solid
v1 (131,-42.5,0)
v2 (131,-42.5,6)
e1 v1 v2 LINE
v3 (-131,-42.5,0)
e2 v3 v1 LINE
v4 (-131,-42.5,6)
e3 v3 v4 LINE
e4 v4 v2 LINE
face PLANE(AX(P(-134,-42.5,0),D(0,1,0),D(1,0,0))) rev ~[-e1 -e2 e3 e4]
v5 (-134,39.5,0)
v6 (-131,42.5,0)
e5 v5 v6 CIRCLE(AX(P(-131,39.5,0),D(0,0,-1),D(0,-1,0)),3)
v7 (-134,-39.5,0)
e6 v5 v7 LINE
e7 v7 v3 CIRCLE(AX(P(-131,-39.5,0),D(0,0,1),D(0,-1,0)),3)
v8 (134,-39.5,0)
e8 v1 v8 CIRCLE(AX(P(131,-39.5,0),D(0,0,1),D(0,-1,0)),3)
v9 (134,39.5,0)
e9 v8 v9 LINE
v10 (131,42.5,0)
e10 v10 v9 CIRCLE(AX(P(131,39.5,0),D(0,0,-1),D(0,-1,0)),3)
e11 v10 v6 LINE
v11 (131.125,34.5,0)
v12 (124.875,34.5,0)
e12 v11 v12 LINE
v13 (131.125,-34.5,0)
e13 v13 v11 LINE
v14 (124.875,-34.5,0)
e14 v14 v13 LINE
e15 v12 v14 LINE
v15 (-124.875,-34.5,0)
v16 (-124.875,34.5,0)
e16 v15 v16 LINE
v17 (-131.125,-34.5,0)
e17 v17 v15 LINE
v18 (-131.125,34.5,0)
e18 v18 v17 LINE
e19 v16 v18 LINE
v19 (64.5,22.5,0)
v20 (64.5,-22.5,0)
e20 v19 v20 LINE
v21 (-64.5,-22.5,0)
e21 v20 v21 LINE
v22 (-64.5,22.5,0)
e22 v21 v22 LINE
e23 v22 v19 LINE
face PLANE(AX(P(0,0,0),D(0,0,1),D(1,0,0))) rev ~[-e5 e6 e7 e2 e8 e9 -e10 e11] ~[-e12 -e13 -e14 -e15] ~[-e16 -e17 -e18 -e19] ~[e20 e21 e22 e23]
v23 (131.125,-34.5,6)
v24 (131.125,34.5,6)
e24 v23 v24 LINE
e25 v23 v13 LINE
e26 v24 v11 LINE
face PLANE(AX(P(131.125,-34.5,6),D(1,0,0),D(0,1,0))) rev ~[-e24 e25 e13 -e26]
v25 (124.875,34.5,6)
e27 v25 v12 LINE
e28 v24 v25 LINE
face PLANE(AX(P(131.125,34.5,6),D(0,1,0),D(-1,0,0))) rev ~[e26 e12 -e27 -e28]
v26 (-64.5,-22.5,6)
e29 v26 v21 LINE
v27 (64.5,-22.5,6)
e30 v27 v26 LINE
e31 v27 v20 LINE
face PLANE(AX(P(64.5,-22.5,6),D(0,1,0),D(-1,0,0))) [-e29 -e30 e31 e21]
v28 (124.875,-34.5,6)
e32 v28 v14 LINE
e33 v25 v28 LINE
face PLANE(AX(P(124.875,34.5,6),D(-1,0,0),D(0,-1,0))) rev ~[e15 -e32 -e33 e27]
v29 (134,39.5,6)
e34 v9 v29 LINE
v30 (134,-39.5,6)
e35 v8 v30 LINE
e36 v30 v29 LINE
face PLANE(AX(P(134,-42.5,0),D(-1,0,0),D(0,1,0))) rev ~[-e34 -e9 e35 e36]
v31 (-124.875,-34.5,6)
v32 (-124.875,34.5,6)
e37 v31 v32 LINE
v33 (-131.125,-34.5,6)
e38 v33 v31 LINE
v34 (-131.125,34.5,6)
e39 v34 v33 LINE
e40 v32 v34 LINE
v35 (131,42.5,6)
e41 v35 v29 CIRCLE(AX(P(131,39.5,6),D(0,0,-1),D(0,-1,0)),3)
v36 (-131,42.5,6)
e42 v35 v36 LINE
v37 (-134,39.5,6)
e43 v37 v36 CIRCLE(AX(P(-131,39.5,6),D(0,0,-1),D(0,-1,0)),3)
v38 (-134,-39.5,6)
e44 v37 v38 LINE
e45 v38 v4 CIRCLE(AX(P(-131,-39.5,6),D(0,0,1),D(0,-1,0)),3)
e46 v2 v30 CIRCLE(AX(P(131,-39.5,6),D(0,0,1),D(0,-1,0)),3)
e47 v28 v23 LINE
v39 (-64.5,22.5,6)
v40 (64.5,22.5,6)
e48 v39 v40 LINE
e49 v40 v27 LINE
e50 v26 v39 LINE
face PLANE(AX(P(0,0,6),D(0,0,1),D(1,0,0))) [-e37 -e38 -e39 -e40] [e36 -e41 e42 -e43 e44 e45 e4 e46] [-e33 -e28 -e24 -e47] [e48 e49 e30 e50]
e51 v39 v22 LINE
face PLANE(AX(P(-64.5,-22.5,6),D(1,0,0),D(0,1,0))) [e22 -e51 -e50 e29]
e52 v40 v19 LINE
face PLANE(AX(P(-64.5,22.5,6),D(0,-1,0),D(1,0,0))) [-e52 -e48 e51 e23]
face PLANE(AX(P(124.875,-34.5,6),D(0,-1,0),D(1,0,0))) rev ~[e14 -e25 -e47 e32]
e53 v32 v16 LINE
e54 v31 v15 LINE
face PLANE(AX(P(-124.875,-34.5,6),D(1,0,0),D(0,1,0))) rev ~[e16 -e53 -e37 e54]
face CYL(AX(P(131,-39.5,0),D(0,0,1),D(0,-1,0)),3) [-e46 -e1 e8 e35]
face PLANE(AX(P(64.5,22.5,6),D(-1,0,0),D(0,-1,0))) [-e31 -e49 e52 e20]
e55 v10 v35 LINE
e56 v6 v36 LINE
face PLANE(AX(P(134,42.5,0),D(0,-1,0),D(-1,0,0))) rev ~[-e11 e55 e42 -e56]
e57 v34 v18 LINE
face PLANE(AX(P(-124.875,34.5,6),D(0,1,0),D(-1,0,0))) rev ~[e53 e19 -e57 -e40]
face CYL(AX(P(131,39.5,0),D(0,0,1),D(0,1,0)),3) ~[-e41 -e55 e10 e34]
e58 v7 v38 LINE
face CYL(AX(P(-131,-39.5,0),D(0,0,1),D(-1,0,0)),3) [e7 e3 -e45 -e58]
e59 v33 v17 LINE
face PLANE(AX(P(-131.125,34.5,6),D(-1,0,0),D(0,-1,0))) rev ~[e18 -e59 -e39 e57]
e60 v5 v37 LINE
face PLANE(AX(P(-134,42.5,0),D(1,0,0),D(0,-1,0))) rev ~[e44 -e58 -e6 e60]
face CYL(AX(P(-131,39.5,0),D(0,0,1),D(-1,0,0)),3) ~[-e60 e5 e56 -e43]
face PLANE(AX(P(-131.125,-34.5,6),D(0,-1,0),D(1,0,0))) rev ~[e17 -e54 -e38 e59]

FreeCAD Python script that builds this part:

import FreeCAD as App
import Part
import Sketcher

V = App.Vector
Q = App.Units.Quantity


def edges_at(feature, points):
    """Names of the edges that pass closest to the given points."""
    edges = feature.Shape.Edges
    near = lambda p: min(range(len(edges)), key=lambda i: edges[i].distToShape(Part.Vertex(*p))[0])
    return sorted({f"Edge{near(p) + 1}" for p in points})

doc = App.newDocument("Part")
body = doc.addObject("PartDesign::Body", "Body")

sketch1 = body.newObject("Sketcher::SketchObject", "Sketch")
sketch1.AttachmentSupport = (doc.getObject("XY_Plane"), [""])
sketch1.MapMode = "FlatFace"
sketch1.addGeometry([
    Part.LineSegment(V(-134, 42.5, 0), V(-134, -42.5, 0)),
    Part.LineSegment(V(-134, -42.5, 0), V(134, -42.5, 0)),
    Part.LineSegment(V(134, -42.5, 0), V(134, 42.5, 0)),
    Part.LineSegment(V(134, 42.5, 0), V(-134, 42.5, 0)),
], False)
sketch1.addConstraint([
    Sketcher.Constraint("Coincident", 0, 2, 1, 1),
    Sketcher.Constraint("Coincident", 1, 2, 2, 1),
    Sketcher.Constraint("Coincident", 2, 2, 3, 1),
    Sketcher.Constraint("Coincident", 3, 2, 0, 1),
    Sketcher.Constraint("Vertical", 0),
    Sketcher.Constraint("Horizontal", 1),
    Sketcher.Constraint("Vertical", 2),
    Sketcher.Constraint("Horizontal", 3),
    Sketcher.Constraint("Symmetric", 0, 2, 2, 2, -1, 1),
    Sketcher.Constraint("DistanceX", 1, 1, 1, 2, Q("268 mm")),
    Sketcher.Constraint("DistanceY", 0, 2, 0, 1, Q("85 mm")),
])
pad1 = body.newObject("PartDesign::Pad", "Pad")
pad1.Profile = sketch1
pad1.Length = 6

sketch2 = body.newObject("Sketcher::SketchObject", "Sketch001")
sketch2.AttachmentSupport = (doc.getObject("XY_Plane"), [""])
sketch2.MapMode = "FlatFace"
sketch2.AttachmentOffset = App.Placement(V(0, 0, 6), App.Rotation())
sketch2.addGeometry([
    Part.LineSegment(V(-131.125, 34.5, 0), V(-131.125, -34.5, 0)),
    Part.LineSegment(V(-131.125, -34.5, 0), V(-124.875, -34.5, 0)),
    Part.LineSegment(V(-124.875, -34.5, 0), V(-124.875, 34.5, 0)),
    Part.LineSegment(V(-124.875, 34.5, 0), V(-131.125, 34.5, 0)),
    Part.LineSegment(V(124.875, 34.5, 0), V(124.875, -34.5, 0)),
    Part.LineSegment(V(124.875, -34.5, 0), V(131.125, -34.5, 0)),
    Part.LineSegment(V(131.125, -34.5, 0), V(131.125, 34.5, 0)),
    Part.LineSegment(V(131.125, 34.5, 0), V(124.875, 34.5, 0)),
], False)
sketch2.addConstraint([
    Sketcher.Constraint("Coincident", 0, 2, 1, 1),
    Sketcher.Constraint("Coincident", 1, 2, 2, 1),
    Sketcher.Constraint("Coincident", 2, 2, 3, 1),
    Sketcher.Constraint("Coincident", 3, 2, 0, 1),
    Sketcher.Constraint("Coincident", 4, 2, 5, 1),
    Sketcher.Constraint("Coincident", 5, 2, 6, 1),
    Sketcher.Constraint("Coincident", 6, 2, 7, 1),
    Sketcher.Constraint("Coincident", 7, 2, 4, 1),
    Sketcher.Constraint("Vertical", 0),
    Sketcher.Constraint("Horizontal", 1),
    Sketcher.Constraint("Vertical", 2),
    Sketcher.Constraint("Horizontal", 3),
    Sketcher.Constraint("Vertical", 4),
    Sketcher.Constraint("Horizontal", 5),
    Sketcher.Constraint("Vertical", 6),
    Sketcher.Constraint("Horizontal", 7),
    Sketcher.Constraint("Symmetric", 2, 2, 4, 2, -1, 1),
    Sketcher.Constraint("Symmetric", 0, 2, 6, 2, -1, 1),
    Sketcher.Constraint("Horizontal", 1, 2, 4, 2),
    Sketcher.Constraint("DistanceX", 1, 1, 1, 2, Q("6.25 mm")),
    Sketcher.Constraint("DistanceY", 0, 2, 0, 1, Q("69 mm")),
    Sketcher.Constraint("DistanceX", 0, 2, 4, 2, Q("256 mm")),
])
pocket1 = body.newObject("PartDesign::Pocket", "Pocket")
pocket1.Profile = sketch2
pocket1.Type = "ThroughAll"
doc.recompute()

fillet = body.newObject("PartDesign::Fillet", "Fillet")
fillet.Base = (pocket1, edges_at(pocket1, [
    (134, -42.5, 3),
    (134, 42.5, 3),
    (-134, -42.5, 3),
    (-134, 42.5, 3),
]))
fillet.Radius = 3

sketch3 = body.newObject("Sketcher::SketchObject", "Sketch002")
sketch3.AttachmentSupport = (doc.getObject("XY_Plane"), [""])
sketch3.MapMode = "FlatFace"
sketch3.AttachmentOffset = App.Placement(V(0, 0, 6), App.Rotation())
sketch3.addGeometry([
    Part.LineSegment(V(-64.5, -22.5, 0), V(64.5, -22.5, 0)),
    Part.LineSegment(V(64.5, -22.5, 0), V(64.5, 22.5, 0)),
    Part.LineSegment(V(64.5, 22.5, 0), V(-64.5, 22.5, 0)),
    Part.LineSegment(V(-64.5, 22.5, 0), V(-64.5, -22.5, 0)),
], False)
sketch3.addConstraint([
    Sketcher.Constraint("Coincident", 0, 2, 1, 1),
    Sketcher.Constraint("Coincident", 1, 2, 2, 1),
    Sketcher.Constraint("Coincident", 2, 2, 3, 1),
    Sketcher.Constraint("Coincident", 3, 2, 0, 1),
    Sketcher.Constraint("Horizontal", 0),
    Sketcher.Constraint("Vertical", 1),
    Sketcher.Constraint("Horizontal", 2),
    Sketcher.Constraint("Vertical", 3),
    Sketcher.Constraint("Symmetric", 0, 2, 2, 2, -1, 1),
    Sketcher.Constraint("DistanceX", 0, 1, 0, 2, Q("129 mm")),
    Sketcher.Constraint("DistanceY", 1, 1, 1, 2, Q("45 mm")),
])
pocket2 = body.newObject("PartDesign::Pocket", "Pocket001")
pocket2.Profile = sketch3
pocket2.Length = 10

doc.recompute()
